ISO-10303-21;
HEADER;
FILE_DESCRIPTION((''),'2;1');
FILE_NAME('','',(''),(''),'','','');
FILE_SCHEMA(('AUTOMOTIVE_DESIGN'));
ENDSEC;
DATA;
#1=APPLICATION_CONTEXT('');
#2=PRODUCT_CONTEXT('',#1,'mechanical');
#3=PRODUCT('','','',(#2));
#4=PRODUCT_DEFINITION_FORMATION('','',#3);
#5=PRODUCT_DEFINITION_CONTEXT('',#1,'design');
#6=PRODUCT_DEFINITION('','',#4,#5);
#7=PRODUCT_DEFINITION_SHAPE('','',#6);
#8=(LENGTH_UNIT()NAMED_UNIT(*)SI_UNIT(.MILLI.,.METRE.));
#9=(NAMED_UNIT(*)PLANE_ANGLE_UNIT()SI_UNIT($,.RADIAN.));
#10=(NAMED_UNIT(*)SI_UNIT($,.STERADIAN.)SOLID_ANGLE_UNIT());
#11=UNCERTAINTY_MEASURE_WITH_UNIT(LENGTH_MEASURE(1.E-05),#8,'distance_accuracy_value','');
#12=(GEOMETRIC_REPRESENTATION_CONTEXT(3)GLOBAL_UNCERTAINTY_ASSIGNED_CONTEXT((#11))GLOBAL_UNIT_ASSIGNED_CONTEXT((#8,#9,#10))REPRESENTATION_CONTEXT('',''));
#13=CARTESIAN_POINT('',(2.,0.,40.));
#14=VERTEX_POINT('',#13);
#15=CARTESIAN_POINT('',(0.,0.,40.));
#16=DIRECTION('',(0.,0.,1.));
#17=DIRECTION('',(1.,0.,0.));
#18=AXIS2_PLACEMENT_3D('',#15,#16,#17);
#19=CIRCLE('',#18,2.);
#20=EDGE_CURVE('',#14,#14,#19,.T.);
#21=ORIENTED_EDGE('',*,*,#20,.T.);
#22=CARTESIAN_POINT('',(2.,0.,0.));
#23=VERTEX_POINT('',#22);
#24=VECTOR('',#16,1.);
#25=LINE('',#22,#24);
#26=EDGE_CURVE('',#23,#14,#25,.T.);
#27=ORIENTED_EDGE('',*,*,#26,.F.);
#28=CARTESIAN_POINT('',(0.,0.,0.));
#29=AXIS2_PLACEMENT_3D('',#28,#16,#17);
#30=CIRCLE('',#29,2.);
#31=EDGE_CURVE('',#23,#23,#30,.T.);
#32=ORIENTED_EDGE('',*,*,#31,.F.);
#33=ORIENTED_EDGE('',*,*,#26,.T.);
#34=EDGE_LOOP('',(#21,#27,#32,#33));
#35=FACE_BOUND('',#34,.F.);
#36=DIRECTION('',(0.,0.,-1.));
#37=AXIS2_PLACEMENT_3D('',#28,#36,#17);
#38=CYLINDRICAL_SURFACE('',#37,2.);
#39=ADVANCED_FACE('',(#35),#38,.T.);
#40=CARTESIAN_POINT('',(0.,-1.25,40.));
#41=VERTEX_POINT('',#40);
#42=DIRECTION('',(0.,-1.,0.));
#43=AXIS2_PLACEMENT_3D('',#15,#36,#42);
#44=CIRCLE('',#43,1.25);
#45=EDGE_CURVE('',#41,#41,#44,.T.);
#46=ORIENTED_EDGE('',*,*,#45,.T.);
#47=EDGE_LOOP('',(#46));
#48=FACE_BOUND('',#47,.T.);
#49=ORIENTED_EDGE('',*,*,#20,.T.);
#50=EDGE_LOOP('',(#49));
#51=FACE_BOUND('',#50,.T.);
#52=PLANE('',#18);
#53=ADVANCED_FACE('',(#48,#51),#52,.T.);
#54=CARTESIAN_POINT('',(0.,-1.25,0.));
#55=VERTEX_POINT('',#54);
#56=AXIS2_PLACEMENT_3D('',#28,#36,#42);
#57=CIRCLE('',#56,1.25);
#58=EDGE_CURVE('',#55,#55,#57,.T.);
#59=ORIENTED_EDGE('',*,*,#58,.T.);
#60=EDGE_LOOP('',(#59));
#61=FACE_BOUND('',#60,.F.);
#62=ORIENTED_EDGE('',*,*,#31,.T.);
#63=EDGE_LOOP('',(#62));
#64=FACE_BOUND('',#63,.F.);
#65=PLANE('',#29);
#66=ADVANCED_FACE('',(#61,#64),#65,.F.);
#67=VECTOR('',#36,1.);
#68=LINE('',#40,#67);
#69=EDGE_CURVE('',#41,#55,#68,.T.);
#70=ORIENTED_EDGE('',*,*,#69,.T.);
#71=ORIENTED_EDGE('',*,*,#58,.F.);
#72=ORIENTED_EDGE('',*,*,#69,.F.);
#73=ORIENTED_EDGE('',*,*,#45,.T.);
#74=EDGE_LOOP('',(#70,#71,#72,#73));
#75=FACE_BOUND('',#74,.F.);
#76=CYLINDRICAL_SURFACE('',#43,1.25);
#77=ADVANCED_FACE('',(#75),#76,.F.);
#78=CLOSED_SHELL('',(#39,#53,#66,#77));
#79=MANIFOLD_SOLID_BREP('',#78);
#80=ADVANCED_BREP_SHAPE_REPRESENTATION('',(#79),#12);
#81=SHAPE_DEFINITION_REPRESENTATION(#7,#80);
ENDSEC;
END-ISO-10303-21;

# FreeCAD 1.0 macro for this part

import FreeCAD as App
import Part
import Sketcher
Q = App.Units.Quantity

doc = App.newDocument("Part")
params = doc.addObject("Spreadsheet::Sheet", "Params")
for row, (alias, value) in enumerate([
    ("sketch1_diameter", "4 mm"),
    ("pad1_length", "40 mm"),
    ("sketch2_diameter", "2.5 mm"),
    ("hole_diameter", "2.5 mm"),
    ("hole_depth", "40 mm"),
], start=1):
    params.set(f"A{row}", alias)
    params.set(f"B{row}", "=" + value)
    params.setAlias(f"B{row}", alias)

body = doc.addObject("PartDesign::Body", "Body")

sketch1 = body.newObject("Sketcher::SketchObject", "Sketch")
sketch1.AttachmentSupport = (doc.getObject("XY_Plane"), [""])
sketch1.MapMode = "FlatFace"
sketch1.addGeometry(Part.Circle(App.Vector(0, 0, 0), App.Vector(0, 0, 1), 2), False)
sketch1.addConstraint([
    Sketcher.Constraint("Coincident", 0, 3, -1, 1),
    Sketcher.Constraint("Diameter", 0, Q("4 mm")),
])
sketch1.setExpression("Constraints[1]", "Params.sketch1_diameter")
pad1 = body.newObject("PartDesign::Pad", "Pad")
pad1.Profile = sketch1
pad1.setExpression("Length", "Params.pad1_length")

sketch2 = body.newObject("Sketcher::SketchObject", "Sketch001")
sketch2.AttachmentSupport = (doc.getObject("XY_Plane"), [""])
sketch2.MapMode = "FlatFace"
sketch2.AttachmentOffset = App.Placement(App.Vector(0, 0, 40), App.Rotation())
sketch2.addGeometry(Part.Circle(App.Vector(0, 0, 0), App.Vector(0, 0, 1), 1.2), False)
sketch2.addConstraint([
    Sketcher.Constraint("Coincident", 0, 3, -1, 1),
    Sketcher.Constraint("Diameter", 0, Q("2.5 mm")),
])
sketch2.setExpression("Constraints[1]", "Params.sketch2_diameter")
doc.recompute()
hole = body.newObject("PartDesign::Hole", "Hole")
hole.Profile = sketch2
hole.ThreadType = "None"
hole.setExpression("Diameter", "Params.hole_diameter")
hole.DepthType = "Dimension"
hole.setExpression("Depth", "Params.hole_depth")
hole.DrillPoint = "Angled"
hole.DrillPointAngle = 118

doc.recompute()
